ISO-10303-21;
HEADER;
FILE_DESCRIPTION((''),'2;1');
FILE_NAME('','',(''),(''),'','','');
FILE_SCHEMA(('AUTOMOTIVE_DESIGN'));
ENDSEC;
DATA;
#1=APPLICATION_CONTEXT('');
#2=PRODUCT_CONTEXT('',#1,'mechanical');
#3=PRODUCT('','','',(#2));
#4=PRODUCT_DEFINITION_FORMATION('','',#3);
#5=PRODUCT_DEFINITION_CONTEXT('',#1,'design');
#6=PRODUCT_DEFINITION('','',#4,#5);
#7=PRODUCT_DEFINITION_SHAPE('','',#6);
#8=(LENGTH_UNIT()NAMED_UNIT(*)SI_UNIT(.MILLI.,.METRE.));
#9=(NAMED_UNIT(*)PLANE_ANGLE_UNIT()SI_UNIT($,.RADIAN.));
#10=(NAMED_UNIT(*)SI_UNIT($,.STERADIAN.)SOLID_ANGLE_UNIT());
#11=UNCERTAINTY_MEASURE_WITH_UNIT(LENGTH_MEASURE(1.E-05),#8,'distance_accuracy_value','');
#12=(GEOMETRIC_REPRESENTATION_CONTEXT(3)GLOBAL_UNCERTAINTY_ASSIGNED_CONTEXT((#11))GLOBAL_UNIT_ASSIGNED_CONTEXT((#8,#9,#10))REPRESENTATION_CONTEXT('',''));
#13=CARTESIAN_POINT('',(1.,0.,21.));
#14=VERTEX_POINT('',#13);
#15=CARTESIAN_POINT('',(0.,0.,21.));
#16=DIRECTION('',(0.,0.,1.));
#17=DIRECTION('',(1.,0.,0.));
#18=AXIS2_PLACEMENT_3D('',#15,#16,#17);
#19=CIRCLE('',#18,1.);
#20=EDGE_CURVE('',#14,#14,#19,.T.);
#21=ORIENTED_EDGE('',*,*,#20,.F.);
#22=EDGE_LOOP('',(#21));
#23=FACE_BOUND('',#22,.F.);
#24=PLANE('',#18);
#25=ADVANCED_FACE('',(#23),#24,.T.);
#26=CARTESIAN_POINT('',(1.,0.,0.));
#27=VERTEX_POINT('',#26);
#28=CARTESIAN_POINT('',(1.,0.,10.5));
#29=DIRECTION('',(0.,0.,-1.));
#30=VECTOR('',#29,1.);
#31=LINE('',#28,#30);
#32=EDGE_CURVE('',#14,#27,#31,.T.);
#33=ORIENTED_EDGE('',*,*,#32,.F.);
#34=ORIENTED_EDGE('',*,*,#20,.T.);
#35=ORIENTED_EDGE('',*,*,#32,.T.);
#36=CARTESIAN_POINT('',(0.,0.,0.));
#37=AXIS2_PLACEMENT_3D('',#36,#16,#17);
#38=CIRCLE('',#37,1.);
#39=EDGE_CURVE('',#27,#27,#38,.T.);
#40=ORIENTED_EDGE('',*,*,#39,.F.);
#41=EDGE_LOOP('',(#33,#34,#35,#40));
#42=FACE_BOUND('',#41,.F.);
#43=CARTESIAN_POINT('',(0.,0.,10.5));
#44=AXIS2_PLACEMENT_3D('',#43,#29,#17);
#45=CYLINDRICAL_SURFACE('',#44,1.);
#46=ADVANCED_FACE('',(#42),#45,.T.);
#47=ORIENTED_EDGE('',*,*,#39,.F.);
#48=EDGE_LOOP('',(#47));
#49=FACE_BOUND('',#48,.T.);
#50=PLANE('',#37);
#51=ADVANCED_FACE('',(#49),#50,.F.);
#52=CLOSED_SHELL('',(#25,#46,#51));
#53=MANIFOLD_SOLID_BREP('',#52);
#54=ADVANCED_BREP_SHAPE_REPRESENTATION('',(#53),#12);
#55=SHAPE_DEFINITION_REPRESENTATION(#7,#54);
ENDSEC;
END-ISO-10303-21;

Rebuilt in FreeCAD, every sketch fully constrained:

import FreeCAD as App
import Part
import Sketcher
Q = App.Units.Quantity

doc = App.newDocument("Part")
body = doc.addObject("PartDesign::Body", "Body")

sketch1 = doc.addObject("Sketcher::SketchObject", "Sketch")
body.addObject(sketch1)
sketch1.AttachmentSupport = (doc.XZ_Plane, [""])
sketch1.MapMode = "FlatFace"
sketch1.addGeometry(Part.LineSegment(App.Vector(0, 0, 0), App.Vector(0, 21, 0)), False)
sketch1.addGeometry(Part.LineSegment(App.Vector(0, 21, 0), App.Vector(1, 21, 0)), False)
sketch1.addGeometry(Part.LineSegment(App.Vector(1, 21, 0), App.Vector(1, 0, 0)), False)
sketch1.addGeometry(Part.LineSegment(App.Vector(1, 0, 0), App.Vector(0, 0, 0)), False)
sketch1.addConstraint(Sketcher.Constraint("Coincident", 0, 2, 1, 1))
sketch1.addConstraint(Sketcher.Constraint("Coincident", 1, 2, 2, 1))
sketch1.addConstraint(Sketcher.Constraint("Coincident", 2, 2, 3, 1))
sketch1.addConstraint(Sketcher.Constraint("Coincident", 3, 2, 0, 1))
sketch1.addConstraint(Sketcher.Constraint("Vertical", 0))
sketch1.addConstraint(Sketcher.Constraint("Horizontal", 1))
sketch1.addConstraint(Sketcher.Constraint("Vertical", 2))
sketch1.addConstraint(Sketcher.Constraint("Horizontal", 3))
sketch1.addConstraint(Sketcher.Constraint("Coincident", 3, 2, -1, 1))
sketch1.addConstraint(Sketcher.Constraint("DistanceX", 1, 1, 1, 2, Q("1 mm")))
sketch1.addConstraint(Sketcher.Constraint("DistanceY", 0, 1, 0, 2, Q("21 mm")))
revolution = doc.addObject("PartDesign::Revolution", "Revolution")
body.addObject(revolution)
revolution.Profile = sketch1
revolution.ReferenceAxis = (sketch1, ["V_Axis"])
revolution.Angle = 360

doc.recompute()
